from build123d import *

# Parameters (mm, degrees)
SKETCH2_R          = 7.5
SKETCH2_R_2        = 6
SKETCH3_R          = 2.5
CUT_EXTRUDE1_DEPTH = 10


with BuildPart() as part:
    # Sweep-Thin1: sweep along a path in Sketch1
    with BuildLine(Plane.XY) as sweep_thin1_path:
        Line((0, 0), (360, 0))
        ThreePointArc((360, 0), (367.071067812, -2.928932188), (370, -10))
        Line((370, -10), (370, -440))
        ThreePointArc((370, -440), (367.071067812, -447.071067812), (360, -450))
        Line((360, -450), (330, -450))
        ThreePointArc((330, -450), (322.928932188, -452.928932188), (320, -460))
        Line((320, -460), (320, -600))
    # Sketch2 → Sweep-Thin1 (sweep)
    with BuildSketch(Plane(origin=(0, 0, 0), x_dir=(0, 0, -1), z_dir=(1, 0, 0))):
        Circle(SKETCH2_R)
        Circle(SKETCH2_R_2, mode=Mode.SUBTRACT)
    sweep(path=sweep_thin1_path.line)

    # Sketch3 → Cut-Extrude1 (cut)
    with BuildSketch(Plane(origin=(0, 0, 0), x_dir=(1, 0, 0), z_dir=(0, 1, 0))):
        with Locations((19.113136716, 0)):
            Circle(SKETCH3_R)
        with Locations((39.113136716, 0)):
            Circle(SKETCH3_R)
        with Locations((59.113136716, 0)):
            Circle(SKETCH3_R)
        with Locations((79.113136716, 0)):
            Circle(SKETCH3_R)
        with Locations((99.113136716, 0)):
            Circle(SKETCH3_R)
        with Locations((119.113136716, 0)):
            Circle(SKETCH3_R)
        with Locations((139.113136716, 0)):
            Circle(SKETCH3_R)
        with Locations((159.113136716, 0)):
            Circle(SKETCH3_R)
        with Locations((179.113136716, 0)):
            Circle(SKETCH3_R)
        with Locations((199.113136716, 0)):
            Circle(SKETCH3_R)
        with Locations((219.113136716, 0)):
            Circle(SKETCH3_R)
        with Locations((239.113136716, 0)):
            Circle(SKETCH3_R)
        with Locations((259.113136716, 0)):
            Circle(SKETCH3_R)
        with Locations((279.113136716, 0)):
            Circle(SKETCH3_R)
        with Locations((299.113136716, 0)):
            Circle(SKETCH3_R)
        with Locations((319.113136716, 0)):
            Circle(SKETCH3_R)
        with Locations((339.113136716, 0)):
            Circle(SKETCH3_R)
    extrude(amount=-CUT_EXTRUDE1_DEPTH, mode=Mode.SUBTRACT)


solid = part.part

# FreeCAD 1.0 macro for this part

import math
import FreeCAD as App
import Part
import Sketcher

doc = App.newDocument("Part")
body = doc.addObject("PartDesign::Body", "Body")

# Sketch on YZ plane
sketch1 = body.newObject("Sketcher::SketchObject", "Sketch")
sketch1.AttachmentSupport = (doc.getObject("YZ_Plane"), [""])
sketch1.MapMode = "FlatFace"
sketch1.addGeometry(Part.Circle(App.Vector(0, 0, 0), App.Vector(0, 0, 1), 8), False)
sketch1.addGeometry(Part.Circle(App.Vector(0, 0, 0), App.Vector(0, 0, 1), 6), False)
sketch1.addConstraint(Sketcher.Constraint("Coincident", 0, 3, -1, 1))
sketch1.addConstraint(Sketcher.Constraint("Coincident", 1, 3, -1, 1))
sketch1.addConstraint(Sketcher.Constraint("Diameter", 0, 15.0))
sketch1.addConstraint(Sketcher.Constraint("Diameter", 1, 12.0))

# Sketch on XY plane
sketch2 = body.newObject("Sketcher::SketchObject", "Sketch001")
sketch2.AttachmentSupport = (doc.getObject("XY_Plane"), [""])
sketch2.MapMode = "FlatFace"
sketch2.addGeometry(Part.LineSegment(App.Vector(0, 0, 0), App.Vector(360, 0, 0)), False)
sketch2.addGeometry(Part.ArcOfCircle(Part.Circle(App.Vector(360, -10, 0), App.Vector(0, 0, 1), 10), math.radians(0), math.radians(90)), False)
sketch2.addGeometry(Part.LineSegment(App.Vector(370, -10, 0), App.Vector(370, -440, 0)), False)
sketch2.addGeometry(Part.ArcOfCircle(Part.Circle(App.Vector(360, -440, 0), App.Vector(0, 0, 1), 10), math.radians(-90), math.radians(0)), False)
sketch2.addGeometry(Part.LineSegment(App.Vector(360, -450, 0), App.Vector(330, -450, 0)), False)
sketch2.addGeometry(Part.ArcOfCircle(Part.Circle(App.Vector(330, -460, 0), App.Vector(0, 0, 1), 10), math.radians(90), math.radians(180)), False)
sketch2.addGeometry(Part.LineSegment(App.Vector(320, -460, 0), App.Vector(320, -600, 0)), False)
sketch2.addConstraint(Sketcher.Constraint("Tangent", 0, 2, 1, 2))
sketch2.addConstraint(Sketcher.Constraint("Tangent", 1, 1, 2, 1))
sketch2.addConstraint(Sketcher.Constraint("Tangent", 2, 2, 3, 2))
sketch2.addConstraint(Sketcher.Constraint("Tangent", 3, 1, 4, 1))
sketch2.addConstraint(Sketcher.Constraint("Tangent", 4, 2, 5, 1))
sketch2.addConstraint(Sketcher.Constraint("Tangent", 5, 2, 6, 1))
sketch2.addConstraint(Sketcher.Constraint("Horizontal", 0))
sketch2.addConstraint(Sketcher.Constraint("Vertical", 2))
sketch2.addConstraint(Sketcher.Constraint("Horizontal", 4))
sketch2.addConstraint(Sketcher.Constraint("Vertical", 6))
sketch2.addConstraint(Sketcher.Constraint("Coincident", 0, 1, -1, 1))
sketch2.addConstraint(Sketcher.Constraint("Equal", 1, 3))
sketch2.addConstraint(Sketcher.Constraint("Equal", 3, 5))
sketch2.addConstraint(Sketcher.Constraint("Radius", 1, 10.0))
sketch2.addConstraint(Sketcher.Constraint("DistanceX", 0, 1, 0, 2, 360.0))
sketch2.addConstraint(Sketcher.Constraint("DistanceX", 4, 2, 4, 1, 30.0))
sketch2.addConstraint(Sketcher.Constraint("DistanceY", 2, 2, 2, 1, 430.0))
sketch2.addConstraint(Sketcher.Constraint("DistanceY", 6, 2, 6, 1, 140.0))
doc.recompute()

additivepipe = body.newObject("PartDesign::AdditivePipe", "AdditivePipe")
additivepipe.Profile = sketch1
additivepipe.Spine = (sketch2, ["Edge1", "Edge2", "Edge3", "Edge4", "Edge5", "Edge6", "Edge7"])

# Sketch on XZ plane
sketch3 = body.newObject("Sketcher::SketchObject", "Sketch002")
sketch3.AttachmentSupport = (doc.getObject("XZ_Plane"), [""])
sketch3.MapMode = "FlatFace"
sketch3.addGeometry(Part.Circle(App.Vector(19.1, 0, 0), App.Vector(0, 0, 1), 2.5), False)
sketch3.addGeometry(Part.Circle(App.Vector(39.1, 0, 0), App.Vector(0, 0, 1), 2.5), False)
sketch3.addGeometry(Part.Circle(App.Vector(59.1, 0, 0), App.Vector(0, 0, 1), 2.5), False)
sketch3.addGeometry(Part.Circle(App.Vector(79.1, 0, 0), App.Vector(0, 0, 1), 2.5), False)
sketch3.addGeometry(Part.Circle(App.Vector(99.1, 0, 0), App.Vector(0, 0, 1), 2.5), False)
sketch3.addGeometry(Part.Circle(App.Vector(119.1, 0, 0), App.Vector(0, 0, 1), 2.5), False)
sketch3.addGeometry(Part.Circle(App.Vector(139.1, 0, 0), App.Vector(0, 0, 1), 2.5), False)
sketch3.addGeometry(Part.Circle(App.Vector(159.1, 0, 0), App.Vector(0, 0, 1), 2.5), False)
sketch3.addGeometry(Part.Circle(App.Vector(179.1, 0, 0), App.Vector(0, 0, 1), 2.5), False)
sketch3.addGeometry(Part.Circle(App.Vector(199.1, 0, 0), App.Vector(0, 0, 1), 2.5), False)
sketch3.addGeometry(Part.Circle(App.Vector(219.1, 0, 0), App.Vector(0, 0, 1), 2.5), False)
sketch3.addGeometry(Part.Circle(App.Vector(239.1, 0, 0), App.Vector(0, 0, 1), 2.5), False)
sketch3.addGeometry(Part.Circle(App.Vector(259.1, 0, 0), App.Vector(0, 0, 1), 2.5), False)
sketch3.addGeometry(Part.Circle(App.Vector(279.1, 0, 0), App.Vector(0, 0, 1), 2.5), False)
sketch3.addGeometry(Part.Circle(App.Vector(299.1, 0, 0), App.Vector(0, 0, 1), 2.5), False)
sketch3.addGeometry(Part.Circle(App.Vector(319.1, 0, 0), App.Vector(0, 0, 1), 2.5), False)
sketch3.addGeometry(Part.Circle(App.Vector(339.1, 0, 0), App.Vector(0, 0, 1), 2.5), False)
sketch3.addConstraint(Sketcher.Constraint("Equal", 0, 1))
sketch3.addConstraint(Sketcher.Constraint("Equal", 1, 2))
sketch3.addConstraint(Sketcher.Constraint("Equal", 2, 3))
sketch3.addConstraint(Sketcher.Constraint("Equal", 3, 4))
sketch3.addConstraint(Sketcher.Constraint("Equal", 4, 5))
sketch3.addConstraint(Sketcher.Constraint("Equal", 5, 6))
sketch3.addConstraint(Sketcher.Constraint("Equal", 6, 7))
sketch3.addConstraint(Sketcher.Constraint("Equal", 7, 8))
sketch3.addConstraint(Sketcher.Constraint("Equal", 8, 9))
sketch3.addConstraint(Sketcher.Constraint("Equal", 9, 10))
sketch3.addConstraint(Sketcher.Constraint("Equal", 10, 11))
sketch3.addConstraint(Sketcher.Constraint("Equal", 11, 12))
sketch3.addConstraint(Sketcher.Constraint("Equal", 12, 13))
sketch3.addConstraint(Sketcher.Constraint("Equal", 13, 14))
sketch3.addConstraint(Sketcher.Constraint("Equal", 14, 15))
sketch3.addConstraint(Sketcher.Constraint("Equal", 15, 16))
sketch3.addConstraint(Sketcher.Constraint("PointOnObject", 0, 3, -1))
sketch3.addConstraint(Sketcher.Constraint("PointOnObject", 1, 3, -1))
sketch3.addConstraint(Sketcher.Constraint("PointOnObject", 2, 3, -1))
sketch3.addConstraint(Sketcher.Constraint("PointOnObject", 3, 3, -1))
sketch3.addConstraint(Sketcher.Constraint("PointOnObject", 4, 3, -1))
sketch3.addConstraint(Sketcher.Constraint("PointOnObject", 5, 3, -1))
sketch3.addConstraint(Sketcher.Constraint("PointOnObject", 6, 3, -1))
sketch3.addConstraint(Sketcher.Constraint("PointOnObject", 7, 3, -1))
sketch3.addConstraint(Sketcher.Constraint("PointOnObject", 8, 3, -1))
sketch3.addConstraint(Sketcher.Constraint("PointOnObject", 9, 3, -1))
sketch3.addConstraint(Sketcher.Constraint("PointOnObject", 10, 3, -1))
sketch3.addConstraint(Sketcher.Constraint("PointOnObject", 11, 3, -1))
sketch3.addConstraint(Sketcher.Constraint("PointOnObject", 12, 3, -1))
sketch3.addConstraint(Sketcher.Constraint("PointOnObject", 13, 3, -1))
sketch3.addConstraint(Sketcher.Constraint("PointOnObject", 14, 3, -1))
sketch3.addConstraint(Sketcher.Constraint("PointOnObject", 15, 3, -1))
sketch3.addConstraint(Sketcher.Constraint("PointOnObject", 16, 3, -1))
sketch3.addConstraint(Sketcher.Constraint("Diameter", 0, 5.0))
sketch3.addConstraint(Sketcher.Constraint("DistanceX", 0, 3, 1, 3, 20.0))
sketch3.addConstraint(Sketcher.Constraint("DistanceX", 1, 3, 2, 3, 20.0))
sketch3.addConstraint(Sketcher.Constraint("DistanceX", 2, 3, 3, 3, 20.0))
sketch3.addConstraint(Sketcher.Constraint("DistanceX", 3, 3, 4, 3, 20.0))
sketch3.addConstraint(Sketcher.Constraint("DistanceX", 4, 3, 5, 3, 20.0))
sketch3.addConstraint(Sketcher.Constraint("DistanceX", 5, 3, 6, 3, 20.0))
sketch3.addConstraint(Sketcher.Constraint("DistanceX", 6, 3, 7, 3, 20.0))
sketch3.addConstraint(Sketcher.Constraint("DistanceX", 7, 3, 8, 3, 20.0))
sketch3.addConstraint(Sketcher.Constraint("DistanceX", 8, 3, 9, 3, 20.0))
sketch3.addConstraint(Sketcher.Constraint("DistanceX", 9, 3, 10, 3, 20.0))
sketch3.addConstraint(Sketcher.Constraint("DistanceX", 10, 3, 11, 3, 20.0))
sketch3.addConstraint(Sketcher.Constraint("DistanceX", 11, 3, 12, 3, 20.0))
sketch3.addConstraint(Sketcher.Constraint("DistanceX", 12, 3, 13, 3, 20.0))
sketch3.addConstraint(Sketcher.Constraint("DistanceX", 13, 3, 14, 3, 20.0))
sketch3.addConstraint(Sketcher.Constraint("DistanceX", 14, 3, 15, 3, 20.0))
sketch3.addConstraint(Sketcher.Constraint("DistanceX", 15, 3, 16, 3, 20.0))
sketch3.addConstraint(Sketcher.Constraint("DistanceX", -1, 1, 0, 3, 19.113137))
pocket1 = body.newObject("PartDesign::Pocket", "Pocket")
pocket1.Profile = sketch3
pocket1.Length = 10
pocket1.Reversed = True

doc.recompute()
